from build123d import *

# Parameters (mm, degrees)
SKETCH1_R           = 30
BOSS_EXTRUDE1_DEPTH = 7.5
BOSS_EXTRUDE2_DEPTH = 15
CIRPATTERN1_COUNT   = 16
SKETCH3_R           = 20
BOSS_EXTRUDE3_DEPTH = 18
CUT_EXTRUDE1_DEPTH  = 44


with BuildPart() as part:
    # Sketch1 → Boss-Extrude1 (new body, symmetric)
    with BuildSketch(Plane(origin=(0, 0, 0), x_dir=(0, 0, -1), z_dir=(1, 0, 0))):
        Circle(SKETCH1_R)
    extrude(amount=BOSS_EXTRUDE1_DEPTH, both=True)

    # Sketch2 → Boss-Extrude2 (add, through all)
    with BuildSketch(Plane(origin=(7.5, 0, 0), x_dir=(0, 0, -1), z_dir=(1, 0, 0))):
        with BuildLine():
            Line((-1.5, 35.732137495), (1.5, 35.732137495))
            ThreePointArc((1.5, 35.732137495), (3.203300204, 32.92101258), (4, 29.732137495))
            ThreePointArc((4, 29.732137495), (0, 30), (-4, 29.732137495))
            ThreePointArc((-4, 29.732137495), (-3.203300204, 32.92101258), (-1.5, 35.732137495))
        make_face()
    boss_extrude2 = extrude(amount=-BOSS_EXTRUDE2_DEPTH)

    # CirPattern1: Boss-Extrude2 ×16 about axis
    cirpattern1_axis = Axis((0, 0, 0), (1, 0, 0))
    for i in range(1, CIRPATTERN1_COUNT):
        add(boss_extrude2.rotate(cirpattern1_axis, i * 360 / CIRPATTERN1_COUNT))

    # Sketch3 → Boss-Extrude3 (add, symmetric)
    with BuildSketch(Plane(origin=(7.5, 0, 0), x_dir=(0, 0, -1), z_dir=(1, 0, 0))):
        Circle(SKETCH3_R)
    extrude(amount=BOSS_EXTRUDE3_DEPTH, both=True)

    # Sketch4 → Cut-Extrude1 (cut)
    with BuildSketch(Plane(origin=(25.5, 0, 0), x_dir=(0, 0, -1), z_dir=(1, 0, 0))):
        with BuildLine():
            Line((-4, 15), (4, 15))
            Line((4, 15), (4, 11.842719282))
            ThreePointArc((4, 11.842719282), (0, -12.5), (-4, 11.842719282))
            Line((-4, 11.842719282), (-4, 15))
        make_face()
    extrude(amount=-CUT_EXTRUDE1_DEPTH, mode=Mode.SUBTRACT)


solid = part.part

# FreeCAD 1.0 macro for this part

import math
import FreeCAD as App
import Part
import Sketcher

V = App.Vector

doc = App.newDocument("Part")
body = doc.addObject("PartDesign::Body", "Body")

sketch1 = body.newObject("Sketcher::SketchObject", "Sketch")
sketch1.AttachmentSupport = (doc.getObject("YZ_Plane"), [""])
sketch1.MapMode = "FlatFace"
sketch1.addGeometry(Part.Circle(V(0, 0, 0), V(0, 0, 1), 30), False)
sketch1.addConstraint(Sketcher.Constraint("Coincident", 0, 3, -1, 1))
sketch1.addConstraint(Sketcher.Constraint("Diameter", 0, 60.0))
pad1 = body.newObject("PartDesign::Pad", "Pad")
pad1.Profile = sketch1
pad1.Length = 15
pad1.Midplane = True

sketch2 = body.newObject("Sketcher::SketchObject", "Sketch001")
sketch2.AttachmentSupport = (doc.getObject("YZ_Plane"), [""])
sketch2.MapMode = "FlatFace"
sketch2.AttachmentOffset = App.Placement(V(0, 0, 7.5), App.Rotation())
sketch2.addGeometry(Part.LineSegment(V(35.7, -1.5, 0), V(35.7, 1.5, 0)), False)
sketch2.addGeometry(Part.ArcOfCircle(Part.Circle(V(28.7, -7, 0), V(0, 0, 1), 11), math.radians(50), math.radians(85)), False)
sketch2.addGeometry(Part.ArcOfCircle(Part.Circle(V(0, 0, 0), V(0, 0, 1), 30), math.radians(-7.66), math.radians(7.66)), False)
sketch2.addGeometry(Part.ArcOfCircle(Part.Circle(V(28.7, 7, 0), V(0, 0, 1), 11), math.radians(-85), math.radians(-50)), False)
sketch2.addConstraint(Sketcher.Constraint("Coincident", 0, 2, 1, 1))
sketch2.addConstraint(Sketcher.Constraint("Coincident", 1, 2, 2, 2))
sketch2.addConstraint(Sketcher.Constraint("Coincident", 2, 1, 3, 1))
sketch2.addConstraint(Sketcher.Constraint("Coincident", 3, 2, 0, 1))
sketch2.addConstraint(Sketcher.Constraint("Vertical", 0))
sketch2.addConstraint(Sketcher.Constraint("Coincident", 2, 3, -1, 1))
sketch2.addConstraint(Sketcher.Constraint("Equal", 1, 3))
sketch2.addConstraint(Sketcher.Constraint("Symmetric", 1, 3, 3, 3, -1))
sketch2.addConstraint(Sketcher.Constraint("Radius", 1, 11.0))
sketch2.addConstraint(Sketcher.Constraint("Radius", 2, 30.0))
sketch2.addConstraint(Sketcher.Constraint("DistanceY", 0, 1, 0, 2, 3.0))
sketch2.addConstraint(Sketcher.Constraint("DistanceY", -1, 1, 1, 2, 4.0))
sketch2.addConstraint(Sketcher.Constraint("DistanceX", 1, 2, 0, 2, 6.0))
pad2 = body.newObject("PartDesign::Pad", "Pad001")
pad2.Profile = sketch2
pad2.Length = 15
pad2.Reversed = True
doc.recompute()

polarpattern = body.newObject("PartDesign::PolarPattern", "PolarPattern")
polarpattern.Originals = [pad2]
polarpattern.Axis = (doc.getObject("X_Axis"), [""])
polarpattern.Angle = 360
polarpattern.Occurrences = 16
body.Tip = polarpattern

sketch3 = body.newObject("Sketcher::SketchObject", "Sketch002")
sketch3.AttachmentSupport = (doc.getObject("YZ_Plane"), [""])
sketch3.MapMode = "FlatFace"
sketch3.AttachmentOffset = App.Placement(V(0, 0, 7.5), App.Rotation())
sketch3.addGeometry(Part.Circle(V(0, 0, 0), V(0, 0, 1), 20), False)
sketch3.addConstraint(Sketcher.Constraint("Coincident", 0, 3, -1, 1))
sketch3.addConstraint(Sketcher.Constraint("Diameter", 0, 40.0))
pad3 = body.newObject("PartDesign::Pad", "Pad002")
pad3.Profile = sketch3
pad3.Length = 36
pad3.Midplane = True

sketch4 = body.newObject("Sketcher::SketchObject", "Sketch003")
sketch4.AttachmentSupport = (doc.getObject("YZ_Plane"), [""])
sketch4.MapMode = "FlatFace"
sketch4.AttachmentOffset = App.Placement(V(0, 0, 25.5), App.Rotation())
sketch4.addGeometry(Part.LineSegment(V(15, -4, 0), V(15, 4, 0)), False)
sketch4.addGeometry(Part.LineSegment(V(15, 4, 0), V(11.8, 4, 0)), False)
sketch4.addGeometry(Part.ArcOfCircle(Part.Circle(V(0, 0, 0), V(0, 0, 1), 12.5), math.radians(19), math.radians(341)), False)
sketch4.addGeometry(Part.LineSegment(V(11.8, -4, 0), V(15, -4, 0)), False)
sketch4.addConstraint(Sketcher.Constraint("Coincident", 0, 2, 1, 1))
sketch4.addConstraint(Sketcher.Constraint("Coincident", 1, 2, 2, 1))
sketch4.addConstraint(Sketcher.Constraint("Coincident", 2, 2, 3, 1))
sketch4.addConstraint(Sketcher.Constraint("Coincident", 3, 2, 0, 1))
sketch4.addConstraint(Sketcher.Constraint("Vertical", 0))
sketch4.addConstraint(Sketcher.Constraint("Horizontal", 1))
sketch4.addConstraint(Sketcher.Constraint("Horizontal", 3))
sketch4.addConstraint(Sketcher.Constraint("Coincident", 2, 3, -1, 1))
sketch4.addConstraint(Sketcher.Constraint("Vertical", 1, 2, 2, 2))
sketch4.addConstraint(Sketcher.Constraint("Radius", 2, 12.5))
sketch4.addConstraint(Sketcher.Constraint("DistanceY", 0, 1, 0, 2, 8.0))
sketch4.addConstraint(Sketcher.Constraint("DistanceX", -1, 1, 0, 2, 15.0))
pocket1 = body.newObject("PartDesign::Pocket", "Pocket")
pocket1.Profile = sketch4
pocket1.Length = 44

doc.recompute()
